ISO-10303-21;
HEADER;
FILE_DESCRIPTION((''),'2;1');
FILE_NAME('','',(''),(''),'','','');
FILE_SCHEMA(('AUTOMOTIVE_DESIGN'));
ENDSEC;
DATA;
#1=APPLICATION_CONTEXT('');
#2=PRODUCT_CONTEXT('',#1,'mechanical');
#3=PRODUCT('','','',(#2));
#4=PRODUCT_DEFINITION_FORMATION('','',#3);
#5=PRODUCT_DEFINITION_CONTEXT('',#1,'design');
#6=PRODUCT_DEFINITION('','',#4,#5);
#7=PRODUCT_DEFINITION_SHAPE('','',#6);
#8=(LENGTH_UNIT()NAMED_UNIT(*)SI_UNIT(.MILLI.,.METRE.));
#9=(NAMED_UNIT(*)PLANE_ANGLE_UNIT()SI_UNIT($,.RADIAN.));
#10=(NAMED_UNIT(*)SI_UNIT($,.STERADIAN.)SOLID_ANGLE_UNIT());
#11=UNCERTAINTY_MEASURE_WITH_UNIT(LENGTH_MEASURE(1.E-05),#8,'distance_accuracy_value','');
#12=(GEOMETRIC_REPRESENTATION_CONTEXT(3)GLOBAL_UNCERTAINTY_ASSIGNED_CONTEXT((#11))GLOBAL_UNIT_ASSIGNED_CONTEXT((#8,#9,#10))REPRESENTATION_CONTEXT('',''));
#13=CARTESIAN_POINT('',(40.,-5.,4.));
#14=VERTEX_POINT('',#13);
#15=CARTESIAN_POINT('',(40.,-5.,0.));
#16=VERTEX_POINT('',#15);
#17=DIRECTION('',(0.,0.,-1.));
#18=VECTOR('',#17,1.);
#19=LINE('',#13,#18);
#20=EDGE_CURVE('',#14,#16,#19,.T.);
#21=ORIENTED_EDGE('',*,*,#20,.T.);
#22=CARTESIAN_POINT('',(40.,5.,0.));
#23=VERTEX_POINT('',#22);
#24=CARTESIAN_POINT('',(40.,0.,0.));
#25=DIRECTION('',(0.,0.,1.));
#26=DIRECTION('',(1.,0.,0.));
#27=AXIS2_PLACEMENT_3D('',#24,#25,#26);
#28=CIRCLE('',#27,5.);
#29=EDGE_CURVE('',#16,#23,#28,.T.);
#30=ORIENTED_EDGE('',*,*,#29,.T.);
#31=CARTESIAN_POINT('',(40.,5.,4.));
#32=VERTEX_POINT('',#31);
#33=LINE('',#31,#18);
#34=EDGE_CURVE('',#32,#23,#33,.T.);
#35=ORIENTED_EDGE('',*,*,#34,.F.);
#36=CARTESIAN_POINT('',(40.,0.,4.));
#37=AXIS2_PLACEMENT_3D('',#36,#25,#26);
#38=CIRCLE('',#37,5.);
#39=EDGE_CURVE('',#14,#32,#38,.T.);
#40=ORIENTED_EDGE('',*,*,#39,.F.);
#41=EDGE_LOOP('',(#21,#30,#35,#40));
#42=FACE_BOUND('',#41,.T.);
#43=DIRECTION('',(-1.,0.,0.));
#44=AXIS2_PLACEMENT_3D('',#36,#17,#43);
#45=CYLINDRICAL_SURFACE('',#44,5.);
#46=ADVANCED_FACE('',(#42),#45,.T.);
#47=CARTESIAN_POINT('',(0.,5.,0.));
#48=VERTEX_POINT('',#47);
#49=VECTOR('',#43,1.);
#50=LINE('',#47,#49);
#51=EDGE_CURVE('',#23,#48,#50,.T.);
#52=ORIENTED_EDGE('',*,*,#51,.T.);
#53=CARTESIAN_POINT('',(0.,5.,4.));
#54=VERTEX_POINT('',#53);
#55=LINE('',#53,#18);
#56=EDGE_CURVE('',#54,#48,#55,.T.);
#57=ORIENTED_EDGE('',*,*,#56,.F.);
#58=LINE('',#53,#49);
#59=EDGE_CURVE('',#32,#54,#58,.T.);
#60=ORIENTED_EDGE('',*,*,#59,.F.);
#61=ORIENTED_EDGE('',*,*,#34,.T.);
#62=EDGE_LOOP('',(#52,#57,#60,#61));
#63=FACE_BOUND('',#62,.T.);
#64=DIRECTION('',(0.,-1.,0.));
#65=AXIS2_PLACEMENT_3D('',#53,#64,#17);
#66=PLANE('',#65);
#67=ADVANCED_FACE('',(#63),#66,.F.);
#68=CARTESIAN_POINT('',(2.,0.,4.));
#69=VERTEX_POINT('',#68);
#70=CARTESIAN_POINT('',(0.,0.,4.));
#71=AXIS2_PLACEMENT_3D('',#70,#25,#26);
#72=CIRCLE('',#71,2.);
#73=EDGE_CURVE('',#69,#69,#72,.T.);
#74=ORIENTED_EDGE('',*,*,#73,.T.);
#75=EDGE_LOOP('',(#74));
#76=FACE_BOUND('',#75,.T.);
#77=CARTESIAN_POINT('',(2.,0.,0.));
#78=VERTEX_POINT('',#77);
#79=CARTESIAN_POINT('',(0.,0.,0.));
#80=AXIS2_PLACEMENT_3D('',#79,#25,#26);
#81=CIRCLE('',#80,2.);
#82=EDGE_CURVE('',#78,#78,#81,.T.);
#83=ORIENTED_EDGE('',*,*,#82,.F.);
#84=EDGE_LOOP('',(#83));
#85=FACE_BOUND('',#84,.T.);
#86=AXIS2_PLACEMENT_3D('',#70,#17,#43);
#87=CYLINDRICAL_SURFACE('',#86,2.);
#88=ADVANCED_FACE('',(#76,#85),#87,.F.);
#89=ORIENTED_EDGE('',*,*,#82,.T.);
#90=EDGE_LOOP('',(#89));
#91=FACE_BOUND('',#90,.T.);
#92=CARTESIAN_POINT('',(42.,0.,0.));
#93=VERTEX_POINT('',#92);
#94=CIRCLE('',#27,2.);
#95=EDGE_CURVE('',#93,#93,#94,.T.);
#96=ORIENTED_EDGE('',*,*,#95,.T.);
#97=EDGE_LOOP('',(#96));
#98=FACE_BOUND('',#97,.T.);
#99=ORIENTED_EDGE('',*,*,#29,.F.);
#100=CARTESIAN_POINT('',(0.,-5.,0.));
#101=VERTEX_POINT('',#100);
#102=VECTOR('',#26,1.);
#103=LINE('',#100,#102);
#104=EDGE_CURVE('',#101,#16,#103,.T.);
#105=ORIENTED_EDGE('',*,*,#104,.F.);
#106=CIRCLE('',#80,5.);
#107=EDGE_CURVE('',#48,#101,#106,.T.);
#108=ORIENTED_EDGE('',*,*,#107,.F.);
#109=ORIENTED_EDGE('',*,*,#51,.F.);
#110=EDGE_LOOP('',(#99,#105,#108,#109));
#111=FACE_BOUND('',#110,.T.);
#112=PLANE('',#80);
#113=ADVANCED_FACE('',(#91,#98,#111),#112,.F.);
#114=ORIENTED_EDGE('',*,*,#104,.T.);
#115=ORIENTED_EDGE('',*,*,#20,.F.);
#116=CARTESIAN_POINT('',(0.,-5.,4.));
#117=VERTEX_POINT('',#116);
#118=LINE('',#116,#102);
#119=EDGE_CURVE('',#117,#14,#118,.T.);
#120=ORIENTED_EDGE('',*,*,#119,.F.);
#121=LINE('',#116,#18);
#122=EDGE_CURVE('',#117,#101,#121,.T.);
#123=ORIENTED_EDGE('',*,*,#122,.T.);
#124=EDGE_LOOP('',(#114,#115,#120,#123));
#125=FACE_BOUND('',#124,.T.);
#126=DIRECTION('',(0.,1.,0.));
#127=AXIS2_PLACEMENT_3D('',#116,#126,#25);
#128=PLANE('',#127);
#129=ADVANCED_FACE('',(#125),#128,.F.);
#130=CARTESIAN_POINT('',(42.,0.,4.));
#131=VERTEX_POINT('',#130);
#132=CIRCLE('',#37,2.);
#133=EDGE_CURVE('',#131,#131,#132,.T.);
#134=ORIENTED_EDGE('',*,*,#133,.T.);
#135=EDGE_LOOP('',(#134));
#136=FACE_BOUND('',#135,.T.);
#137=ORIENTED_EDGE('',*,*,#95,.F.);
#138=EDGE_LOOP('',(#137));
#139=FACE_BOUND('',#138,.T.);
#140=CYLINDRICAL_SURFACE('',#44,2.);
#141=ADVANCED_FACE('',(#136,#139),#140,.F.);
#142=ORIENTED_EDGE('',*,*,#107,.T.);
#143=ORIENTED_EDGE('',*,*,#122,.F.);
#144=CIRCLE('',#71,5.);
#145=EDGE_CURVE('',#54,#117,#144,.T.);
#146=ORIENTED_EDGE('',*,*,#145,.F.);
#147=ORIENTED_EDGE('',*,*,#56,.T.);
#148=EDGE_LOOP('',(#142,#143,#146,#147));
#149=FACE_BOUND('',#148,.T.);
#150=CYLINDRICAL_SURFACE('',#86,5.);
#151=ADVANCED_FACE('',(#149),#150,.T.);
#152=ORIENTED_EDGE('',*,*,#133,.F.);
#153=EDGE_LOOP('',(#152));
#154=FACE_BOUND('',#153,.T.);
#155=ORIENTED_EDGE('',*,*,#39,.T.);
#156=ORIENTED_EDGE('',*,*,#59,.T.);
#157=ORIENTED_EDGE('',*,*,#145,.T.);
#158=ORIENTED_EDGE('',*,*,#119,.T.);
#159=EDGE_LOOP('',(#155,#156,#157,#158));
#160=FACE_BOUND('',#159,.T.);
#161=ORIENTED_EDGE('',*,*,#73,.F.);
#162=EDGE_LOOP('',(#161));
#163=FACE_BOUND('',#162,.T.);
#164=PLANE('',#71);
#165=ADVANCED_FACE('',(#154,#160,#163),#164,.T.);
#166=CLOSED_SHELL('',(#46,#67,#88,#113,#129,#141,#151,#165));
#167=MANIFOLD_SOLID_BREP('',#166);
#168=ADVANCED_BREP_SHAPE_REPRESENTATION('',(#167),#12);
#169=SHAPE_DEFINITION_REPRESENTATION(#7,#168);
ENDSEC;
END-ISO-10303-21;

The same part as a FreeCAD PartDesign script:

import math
import FreeCAD as App
import Part
import Sketcher

V = App.Vector

doc = App.newDocument("Part")
body = doc.addObject("PartDesign::Body", "Body")

# Sketch on XY plane
sketch1 = body.newObject("Sketcher::SketchObject", "Sketch")
sketch1.AttachmentSupport = (doc.getObject("XY_Plane"), [""])
sketch1.MapMode = "FlatFace"
sketch1.addGeometry([
    Part.LineSegment(V(40, 5, 0), V(0, 5, 0)),  # 0
    Part.ArcOfCircle(Part.Circle(V(0, 0, 0), V(0, 0, 1), 5), math.radians(90), math.radians(270)),  # 1
    Part.LineSegment(V(0, -5, 0), V(40, -5, 0)),  # 2
    Part.ArcOfCircle(Part.Circle(V(40, 0, 0), V(0, 0, 1), 5), math.radians(-90), math.radians(90)),  # 3
    Part.Circle(V(40, 0, 0), V(0, 0, 1), 2),  # 4
    Part.Circle(V(0, 0, 0), V(0, 0, 1), 2),  # 5
], False)
sketch1.addConstraint([
    Sketcher.Constraint("Tangent", 0, 2, 1, 1),
    Sketcher.Constraint("Tangent", 1, 2, 2, 1),
    Sketcher.Constraint("Tangent", 2, 2, 3, 1),
    Sketcher.Constraint("Tangent", 3, 2, 0, 1),
    Sketcher.Constraint("Horizontal", 0),
    Sketcher.Constraint("Horizontal", 2),
    Sketcher.Constraint("Coincident", 1, 3, -1, 1),
    Sketcher.Constraint("Coincident", 5, 3, -1, 1),
    Sketcher.Constraint("Coincident", 4, 3, 3, 3),
    Sketcher.Constraint("Equal", 4, 5),
    Sketcher.Constraint("Diameter", 4, 4.0),
    Sketcher.Constraint("Radius", 1, 5.0),
    Sketcher.Constraint("DistanceX", 0, 2, 0, 1, 40.0),
])
pad1 = body.newObject("PartDesign::Pad", "Pad")
pad1.Profile = sketch1
pad1.Length = 4

doc.recompute()
